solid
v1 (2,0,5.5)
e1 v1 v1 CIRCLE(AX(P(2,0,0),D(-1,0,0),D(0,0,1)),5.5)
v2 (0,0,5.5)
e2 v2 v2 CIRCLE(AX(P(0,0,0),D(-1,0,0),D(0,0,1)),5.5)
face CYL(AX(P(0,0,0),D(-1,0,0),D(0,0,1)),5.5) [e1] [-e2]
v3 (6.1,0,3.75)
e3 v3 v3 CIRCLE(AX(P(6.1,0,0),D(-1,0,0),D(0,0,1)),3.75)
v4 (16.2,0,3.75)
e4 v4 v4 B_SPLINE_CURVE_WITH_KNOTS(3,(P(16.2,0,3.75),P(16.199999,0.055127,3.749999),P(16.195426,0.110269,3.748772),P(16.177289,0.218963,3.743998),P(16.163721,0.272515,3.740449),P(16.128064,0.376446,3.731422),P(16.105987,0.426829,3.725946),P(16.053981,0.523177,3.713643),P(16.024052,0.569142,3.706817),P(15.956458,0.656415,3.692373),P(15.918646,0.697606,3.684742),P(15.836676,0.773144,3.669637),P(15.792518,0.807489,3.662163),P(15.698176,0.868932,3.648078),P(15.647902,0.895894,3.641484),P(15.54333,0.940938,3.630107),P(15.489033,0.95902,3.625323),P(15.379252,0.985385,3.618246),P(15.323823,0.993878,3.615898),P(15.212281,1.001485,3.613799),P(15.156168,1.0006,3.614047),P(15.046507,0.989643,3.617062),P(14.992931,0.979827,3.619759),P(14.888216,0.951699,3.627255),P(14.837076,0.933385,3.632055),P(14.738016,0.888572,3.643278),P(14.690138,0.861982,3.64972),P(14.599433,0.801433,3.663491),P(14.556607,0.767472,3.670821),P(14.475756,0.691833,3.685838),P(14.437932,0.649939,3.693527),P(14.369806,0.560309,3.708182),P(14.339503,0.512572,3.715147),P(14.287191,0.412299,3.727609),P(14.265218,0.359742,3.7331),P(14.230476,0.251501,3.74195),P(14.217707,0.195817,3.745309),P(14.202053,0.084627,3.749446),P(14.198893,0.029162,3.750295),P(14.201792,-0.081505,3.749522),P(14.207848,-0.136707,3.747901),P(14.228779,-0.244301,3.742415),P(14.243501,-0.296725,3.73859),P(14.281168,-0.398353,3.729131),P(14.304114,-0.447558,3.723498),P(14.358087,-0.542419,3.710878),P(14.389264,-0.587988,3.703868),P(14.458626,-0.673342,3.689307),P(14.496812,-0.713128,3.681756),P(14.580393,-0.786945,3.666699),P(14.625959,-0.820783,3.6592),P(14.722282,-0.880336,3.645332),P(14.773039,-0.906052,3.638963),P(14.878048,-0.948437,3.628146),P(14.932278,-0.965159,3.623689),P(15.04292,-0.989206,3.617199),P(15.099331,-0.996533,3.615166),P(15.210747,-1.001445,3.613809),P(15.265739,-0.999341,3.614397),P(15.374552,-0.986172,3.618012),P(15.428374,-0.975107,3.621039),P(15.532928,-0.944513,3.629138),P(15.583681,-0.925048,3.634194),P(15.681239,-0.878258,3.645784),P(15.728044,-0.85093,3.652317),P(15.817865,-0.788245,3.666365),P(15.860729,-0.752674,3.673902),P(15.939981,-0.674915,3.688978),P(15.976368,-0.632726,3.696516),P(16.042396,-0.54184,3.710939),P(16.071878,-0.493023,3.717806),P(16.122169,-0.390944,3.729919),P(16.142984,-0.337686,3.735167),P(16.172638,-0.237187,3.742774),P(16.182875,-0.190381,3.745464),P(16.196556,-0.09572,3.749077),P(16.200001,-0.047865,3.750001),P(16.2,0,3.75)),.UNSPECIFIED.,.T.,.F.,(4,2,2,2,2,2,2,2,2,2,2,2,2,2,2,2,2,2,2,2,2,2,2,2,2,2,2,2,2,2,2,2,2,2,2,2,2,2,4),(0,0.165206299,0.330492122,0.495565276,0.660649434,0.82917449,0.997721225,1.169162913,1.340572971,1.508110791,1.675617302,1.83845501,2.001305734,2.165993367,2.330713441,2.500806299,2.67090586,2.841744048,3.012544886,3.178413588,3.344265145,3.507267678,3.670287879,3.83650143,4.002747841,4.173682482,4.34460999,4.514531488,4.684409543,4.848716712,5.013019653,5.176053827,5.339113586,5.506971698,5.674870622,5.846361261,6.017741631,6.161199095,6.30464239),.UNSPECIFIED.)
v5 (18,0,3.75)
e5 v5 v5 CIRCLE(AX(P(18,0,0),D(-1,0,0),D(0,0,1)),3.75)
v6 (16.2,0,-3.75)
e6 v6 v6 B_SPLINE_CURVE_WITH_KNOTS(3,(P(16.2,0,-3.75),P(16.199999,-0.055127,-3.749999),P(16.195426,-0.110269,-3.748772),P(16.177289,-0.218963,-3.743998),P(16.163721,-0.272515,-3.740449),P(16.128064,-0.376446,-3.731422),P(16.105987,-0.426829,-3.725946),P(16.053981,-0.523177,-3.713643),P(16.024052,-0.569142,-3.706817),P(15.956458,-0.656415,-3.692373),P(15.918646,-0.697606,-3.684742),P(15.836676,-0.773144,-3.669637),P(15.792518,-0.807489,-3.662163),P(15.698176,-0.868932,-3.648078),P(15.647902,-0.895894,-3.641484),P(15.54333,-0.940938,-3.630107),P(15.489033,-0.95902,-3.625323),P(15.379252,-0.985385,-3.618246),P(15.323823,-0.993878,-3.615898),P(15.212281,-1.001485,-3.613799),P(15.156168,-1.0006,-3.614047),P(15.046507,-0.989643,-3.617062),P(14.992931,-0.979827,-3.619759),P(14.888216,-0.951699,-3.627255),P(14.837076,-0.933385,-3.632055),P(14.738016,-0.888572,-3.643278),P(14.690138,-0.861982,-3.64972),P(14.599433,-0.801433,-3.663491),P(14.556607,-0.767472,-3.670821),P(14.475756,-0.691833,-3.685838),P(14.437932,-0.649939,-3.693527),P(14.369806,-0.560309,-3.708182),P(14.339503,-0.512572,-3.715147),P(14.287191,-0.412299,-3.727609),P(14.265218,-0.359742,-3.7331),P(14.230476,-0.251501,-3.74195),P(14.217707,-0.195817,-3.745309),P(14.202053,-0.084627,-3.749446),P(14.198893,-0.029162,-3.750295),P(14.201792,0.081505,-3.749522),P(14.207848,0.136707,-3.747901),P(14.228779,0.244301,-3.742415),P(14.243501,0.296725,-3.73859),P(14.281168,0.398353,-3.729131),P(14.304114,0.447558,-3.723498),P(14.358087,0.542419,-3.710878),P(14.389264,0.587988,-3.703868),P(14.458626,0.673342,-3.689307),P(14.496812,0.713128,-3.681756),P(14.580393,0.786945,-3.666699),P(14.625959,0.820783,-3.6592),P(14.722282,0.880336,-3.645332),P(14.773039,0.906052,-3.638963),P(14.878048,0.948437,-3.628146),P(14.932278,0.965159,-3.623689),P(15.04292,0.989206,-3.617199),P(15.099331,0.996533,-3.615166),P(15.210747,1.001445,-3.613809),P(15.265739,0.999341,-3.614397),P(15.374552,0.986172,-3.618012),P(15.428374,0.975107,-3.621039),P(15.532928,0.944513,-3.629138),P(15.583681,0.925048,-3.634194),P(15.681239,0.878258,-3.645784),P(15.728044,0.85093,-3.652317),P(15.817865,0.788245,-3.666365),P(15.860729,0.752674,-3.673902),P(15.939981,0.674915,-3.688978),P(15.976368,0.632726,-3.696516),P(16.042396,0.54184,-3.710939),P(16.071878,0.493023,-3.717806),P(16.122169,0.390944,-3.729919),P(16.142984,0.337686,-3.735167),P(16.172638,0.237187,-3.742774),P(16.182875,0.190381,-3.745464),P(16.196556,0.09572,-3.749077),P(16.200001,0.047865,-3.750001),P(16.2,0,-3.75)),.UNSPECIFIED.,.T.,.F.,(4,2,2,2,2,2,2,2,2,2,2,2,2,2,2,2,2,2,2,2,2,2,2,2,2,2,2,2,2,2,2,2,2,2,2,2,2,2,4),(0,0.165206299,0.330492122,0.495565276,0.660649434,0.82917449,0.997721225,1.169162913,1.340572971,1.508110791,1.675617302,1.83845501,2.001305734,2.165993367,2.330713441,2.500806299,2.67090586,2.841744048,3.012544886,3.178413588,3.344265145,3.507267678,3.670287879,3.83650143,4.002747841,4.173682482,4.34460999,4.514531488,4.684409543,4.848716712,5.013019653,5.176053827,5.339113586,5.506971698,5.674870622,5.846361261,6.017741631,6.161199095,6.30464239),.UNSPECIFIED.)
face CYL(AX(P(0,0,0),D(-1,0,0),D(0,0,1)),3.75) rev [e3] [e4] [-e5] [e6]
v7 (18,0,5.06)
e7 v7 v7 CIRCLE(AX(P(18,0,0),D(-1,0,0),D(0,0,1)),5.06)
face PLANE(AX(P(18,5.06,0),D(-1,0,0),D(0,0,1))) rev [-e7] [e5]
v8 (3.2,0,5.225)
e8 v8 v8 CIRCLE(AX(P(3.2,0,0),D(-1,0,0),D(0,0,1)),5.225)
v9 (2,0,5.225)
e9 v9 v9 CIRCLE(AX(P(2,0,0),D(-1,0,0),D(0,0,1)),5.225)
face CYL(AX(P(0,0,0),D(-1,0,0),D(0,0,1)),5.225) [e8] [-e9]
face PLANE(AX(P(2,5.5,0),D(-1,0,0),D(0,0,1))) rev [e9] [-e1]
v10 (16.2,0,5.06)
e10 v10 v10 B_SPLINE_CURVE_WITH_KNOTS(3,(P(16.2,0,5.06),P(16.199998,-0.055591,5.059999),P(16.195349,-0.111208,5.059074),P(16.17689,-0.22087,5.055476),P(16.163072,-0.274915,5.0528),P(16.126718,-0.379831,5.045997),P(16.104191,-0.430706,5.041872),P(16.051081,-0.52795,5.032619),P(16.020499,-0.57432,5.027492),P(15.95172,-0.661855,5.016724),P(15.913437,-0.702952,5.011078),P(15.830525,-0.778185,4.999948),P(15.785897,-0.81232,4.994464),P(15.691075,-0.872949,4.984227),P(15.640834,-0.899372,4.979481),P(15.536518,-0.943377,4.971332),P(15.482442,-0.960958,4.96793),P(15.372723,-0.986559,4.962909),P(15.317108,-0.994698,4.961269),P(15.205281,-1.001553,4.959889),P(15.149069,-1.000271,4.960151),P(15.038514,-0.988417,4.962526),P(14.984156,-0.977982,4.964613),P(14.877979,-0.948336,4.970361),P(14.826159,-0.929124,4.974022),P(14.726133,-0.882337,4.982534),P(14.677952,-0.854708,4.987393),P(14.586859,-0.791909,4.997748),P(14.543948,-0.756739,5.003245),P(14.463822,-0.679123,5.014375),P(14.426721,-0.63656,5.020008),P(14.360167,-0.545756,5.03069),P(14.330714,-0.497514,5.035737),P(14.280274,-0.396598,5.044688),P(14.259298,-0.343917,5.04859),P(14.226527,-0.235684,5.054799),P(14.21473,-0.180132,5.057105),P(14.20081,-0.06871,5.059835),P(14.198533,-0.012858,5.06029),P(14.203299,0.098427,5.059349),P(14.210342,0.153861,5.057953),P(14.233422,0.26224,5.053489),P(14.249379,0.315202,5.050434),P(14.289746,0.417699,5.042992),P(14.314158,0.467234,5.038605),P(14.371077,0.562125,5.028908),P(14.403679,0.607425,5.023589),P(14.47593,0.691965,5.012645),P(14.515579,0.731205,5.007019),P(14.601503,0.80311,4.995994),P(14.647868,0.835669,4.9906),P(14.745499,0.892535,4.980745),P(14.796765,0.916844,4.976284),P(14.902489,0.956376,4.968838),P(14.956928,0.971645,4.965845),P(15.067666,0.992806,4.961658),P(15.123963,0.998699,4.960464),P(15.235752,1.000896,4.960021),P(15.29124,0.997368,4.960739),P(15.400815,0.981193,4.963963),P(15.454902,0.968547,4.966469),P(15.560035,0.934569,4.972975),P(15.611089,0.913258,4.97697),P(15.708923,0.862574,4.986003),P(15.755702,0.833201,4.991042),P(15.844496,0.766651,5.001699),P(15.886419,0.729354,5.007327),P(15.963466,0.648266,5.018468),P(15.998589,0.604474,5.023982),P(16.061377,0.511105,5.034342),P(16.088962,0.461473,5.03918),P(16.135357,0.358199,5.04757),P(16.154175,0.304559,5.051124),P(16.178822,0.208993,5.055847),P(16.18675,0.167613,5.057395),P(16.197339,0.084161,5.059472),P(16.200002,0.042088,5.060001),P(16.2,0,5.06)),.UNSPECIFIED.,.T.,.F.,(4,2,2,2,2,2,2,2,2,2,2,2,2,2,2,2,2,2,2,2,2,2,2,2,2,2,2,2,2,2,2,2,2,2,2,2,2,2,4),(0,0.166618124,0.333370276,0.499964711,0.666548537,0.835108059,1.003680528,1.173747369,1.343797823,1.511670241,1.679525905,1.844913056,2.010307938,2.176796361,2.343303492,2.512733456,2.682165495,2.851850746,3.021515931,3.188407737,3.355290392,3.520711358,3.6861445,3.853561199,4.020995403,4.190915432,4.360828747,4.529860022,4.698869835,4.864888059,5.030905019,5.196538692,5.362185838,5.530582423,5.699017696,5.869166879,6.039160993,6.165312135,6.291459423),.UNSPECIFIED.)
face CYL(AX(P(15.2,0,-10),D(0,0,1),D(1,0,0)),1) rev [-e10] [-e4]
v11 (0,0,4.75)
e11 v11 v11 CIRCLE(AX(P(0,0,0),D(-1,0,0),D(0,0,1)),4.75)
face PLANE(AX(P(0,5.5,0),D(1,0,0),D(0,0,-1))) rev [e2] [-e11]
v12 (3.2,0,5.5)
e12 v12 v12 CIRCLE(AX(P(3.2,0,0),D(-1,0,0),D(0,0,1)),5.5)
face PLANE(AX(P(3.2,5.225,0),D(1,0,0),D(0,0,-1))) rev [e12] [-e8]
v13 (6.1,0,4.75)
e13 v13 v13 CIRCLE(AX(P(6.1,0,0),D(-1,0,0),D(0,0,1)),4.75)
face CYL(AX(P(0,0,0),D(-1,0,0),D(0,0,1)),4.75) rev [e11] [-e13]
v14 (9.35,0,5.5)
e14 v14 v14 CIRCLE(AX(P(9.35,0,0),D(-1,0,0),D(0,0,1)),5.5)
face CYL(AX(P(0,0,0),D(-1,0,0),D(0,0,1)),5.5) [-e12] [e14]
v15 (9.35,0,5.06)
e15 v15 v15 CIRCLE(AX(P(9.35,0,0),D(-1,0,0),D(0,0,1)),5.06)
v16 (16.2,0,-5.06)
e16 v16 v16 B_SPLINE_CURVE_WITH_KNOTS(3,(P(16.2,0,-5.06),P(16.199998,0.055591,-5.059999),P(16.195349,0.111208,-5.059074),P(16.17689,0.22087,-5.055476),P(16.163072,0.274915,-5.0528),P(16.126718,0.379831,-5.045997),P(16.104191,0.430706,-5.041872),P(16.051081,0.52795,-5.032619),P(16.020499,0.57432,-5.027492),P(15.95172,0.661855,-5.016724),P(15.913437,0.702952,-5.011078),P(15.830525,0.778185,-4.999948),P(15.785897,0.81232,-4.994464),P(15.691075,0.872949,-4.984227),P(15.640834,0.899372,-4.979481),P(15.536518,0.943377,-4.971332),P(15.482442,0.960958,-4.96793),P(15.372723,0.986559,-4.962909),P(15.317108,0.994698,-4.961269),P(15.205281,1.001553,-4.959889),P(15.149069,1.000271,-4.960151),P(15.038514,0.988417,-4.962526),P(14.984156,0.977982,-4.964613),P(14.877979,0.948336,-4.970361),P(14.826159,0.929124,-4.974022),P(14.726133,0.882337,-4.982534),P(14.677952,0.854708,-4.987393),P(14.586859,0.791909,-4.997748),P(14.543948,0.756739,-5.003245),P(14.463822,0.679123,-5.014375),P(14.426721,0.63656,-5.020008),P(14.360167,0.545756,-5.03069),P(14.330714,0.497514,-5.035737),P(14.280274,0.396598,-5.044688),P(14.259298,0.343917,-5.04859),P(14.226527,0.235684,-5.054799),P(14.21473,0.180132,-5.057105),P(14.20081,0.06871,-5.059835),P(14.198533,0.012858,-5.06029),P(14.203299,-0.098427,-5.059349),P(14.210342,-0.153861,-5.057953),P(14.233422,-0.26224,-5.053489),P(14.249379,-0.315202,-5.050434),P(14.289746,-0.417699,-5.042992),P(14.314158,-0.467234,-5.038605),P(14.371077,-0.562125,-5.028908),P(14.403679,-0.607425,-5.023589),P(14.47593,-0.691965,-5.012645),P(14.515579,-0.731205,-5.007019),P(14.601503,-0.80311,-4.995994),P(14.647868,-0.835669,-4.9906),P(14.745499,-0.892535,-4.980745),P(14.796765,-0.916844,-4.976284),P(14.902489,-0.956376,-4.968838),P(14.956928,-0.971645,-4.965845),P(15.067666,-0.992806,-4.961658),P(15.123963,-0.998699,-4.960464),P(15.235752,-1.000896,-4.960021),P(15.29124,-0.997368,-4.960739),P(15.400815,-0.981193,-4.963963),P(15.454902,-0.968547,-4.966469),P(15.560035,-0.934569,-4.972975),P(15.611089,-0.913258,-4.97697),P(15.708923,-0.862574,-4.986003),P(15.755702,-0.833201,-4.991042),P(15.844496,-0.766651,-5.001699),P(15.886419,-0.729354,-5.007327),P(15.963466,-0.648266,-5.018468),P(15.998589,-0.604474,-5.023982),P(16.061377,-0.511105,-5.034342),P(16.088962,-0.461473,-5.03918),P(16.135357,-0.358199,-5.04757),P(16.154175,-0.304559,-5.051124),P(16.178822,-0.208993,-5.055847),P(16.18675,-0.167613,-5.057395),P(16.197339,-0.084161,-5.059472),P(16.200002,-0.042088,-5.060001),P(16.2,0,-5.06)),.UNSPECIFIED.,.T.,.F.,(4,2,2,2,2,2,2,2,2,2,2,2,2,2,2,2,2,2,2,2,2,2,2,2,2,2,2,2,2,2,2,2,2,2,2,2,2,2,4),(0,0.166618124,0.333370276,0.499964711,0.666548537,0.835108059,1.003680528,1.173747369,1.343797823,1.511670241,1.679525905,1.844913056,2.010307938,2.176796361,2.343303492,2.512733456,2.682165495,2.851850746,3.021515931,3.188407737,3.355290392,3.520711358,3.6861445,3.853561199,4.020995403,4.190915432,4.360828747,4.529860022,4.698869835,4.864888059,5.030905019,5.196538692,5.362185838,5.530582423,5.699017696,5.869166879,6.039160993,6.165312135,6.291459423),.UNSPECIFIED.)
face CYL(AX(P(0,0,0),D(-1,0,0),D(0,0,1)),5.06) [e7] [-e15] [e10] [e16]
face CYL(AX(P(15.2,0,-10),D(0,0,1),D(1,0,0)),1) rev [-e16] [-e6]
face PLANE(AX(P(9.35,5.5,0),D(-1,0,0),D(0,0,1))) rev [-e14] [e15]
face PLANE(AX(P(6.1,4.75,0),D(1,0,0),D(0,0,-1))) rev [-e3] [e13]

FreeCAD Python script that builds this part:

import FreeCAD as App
import Part
import Sketcher

V = App.Vector
Q = App.Units.Quantity


def add_polygon(sketch, points):
    """Adds a closed chain of lines whose ends are joined by coincident constraints."""
    first, n = sketch.GeometryCount, len(points)
    for a, b in zip(points, points[1:] + points[:1]):
        sketch.addGeometry(Part.LineSegment(App.Vector(*a, 0), App.Vector(*b, 0)), False)
    for i in range(n):
        sketch.addConstraint(Sketcher.Constraint("Coincident", first + i, 2, first + (i + 1) % n, 1))

doc = App.newDocument("Part")
body = doc.addObject("PartDesign::Body", "Body")

# Sketch on XY plane
sketch1 = doc.addObject("Sketcher::SketchObject", "Sketch")
body.addObject(sketch1)
sketch1.AttachmentSupport = (doc.XY_Plane, [""])
sketch1.MapMode = "FlatFace"
add_polygon(sketch1, [(2, 5.5), (0, 5.5), (0, 4.75), (6.1, 4.75), (6.1, 3.75), (18, 3.75), (18, 5.06), (9.35, 5.06), (9.35, 5.5), (3.2, 5.5), (3.2, 5.22), (2, 5.22)])  # lines 0-11
sketch1.addConstraint([
    Sketcher.Constraint("Horizontal", 0),
    Sketcher.Constraint("Vertical", 1),
    Sketcher.Constraint("Horizontal", 2),
    Sketcher.Constraint("Vertical", 3),
    Sketcher.Constraint("Horizontal", 4),
    Sketcher.Constraint("Vertical", 5),
    Sketcher.Constraint("Horizontal", 6),
    Sketcher.Constraint("Vertical", 7),
    Sketcher.Constraint("Horizontal", 8),
    Sketcher.Constraint("Vertical", 9),
    Sketcher.Constraint("Horizontal", 10),
    Sketcher.Constraint("Vertical", 11),
    Sketcher.Constraint("PointOnObject", 0, 2, -2),
    Sketcher.Constraint("Horizontal", 0, 2, 7, 2),
    Sketcher.Constraint("DistanceX", 0, 2, 0, 1, Q("2 mm")),
    Sketcher.Constraint("DistanceY", 3, 2, 3, 1, Q("1 mm")),
    Sketcher.Constraint("DistanceX", 2, 1, 2, 2, Q("6.1 mm")),
    Sketcher.Constraint("DistanceX", 4, 1, 4, 2, Q("11.9 mm")),
    Sketcher.Constraint("DistanceX", 10, 2, 10, 1, Q("1.2 mm")),
    Sketcher.Constraint("DistanceX", 6, 2, 6, 1, Q("8.65 mm")),
    Sketcher.Constraint("DistanceY", 1, 2, 1, 1, Q("0.75 mm")),
    Sketcher.Constraint("DistanceY", 5, 1, 5, 2, Q("1.31 mm")),
    Sketcher.Constraint("DistanceY", -1, 1, 0, 2, Q("5.5 mm")),
    Sketcher.Constraint("DistanceY", 9, 2, 9, 1, Q("0.275 mm")),
])
revolution = doc.addObject("PartDesign::Revolution", "Revolution")
body.addObject(revolution)
revolution.Profile = sketch1
revolution.ReferenceAxis = (sketch1, ["H_Axis"])
revolution.Angle = 360

# Sketch on XY plane
sketch2 = doc.addObject("Sketcher::SketchObject", "Sketch001")
body.addObject(sketch2)
sketch2.AttachmentSupport = (doc.XY_Plane, [""])
sketch2.MapMode = "FlatFace"
sketch2.addGeometry(Part.Circle(V(15.2, 0, 0), V(0, 0, 1), 1), False)
sketch2.addConstraint([
    Sketcher.Constraint("PointOnObject", 0, 3, -1),
    Sketcher.Constraint("Diameter", 0, Q("2 mm")),
    Sketcher.Constraint("DistanceX", -1, 1, 0, 3, Q("15.2 mm")),
])
pocket1 = doc.addObject("PartDesign::Pocket", "Pocket")
body.addObject(pocket1)
pocket1.Profile = sketch2
pocket1.Length = 20
pocket1.Midplane = True

doc.recompute()
